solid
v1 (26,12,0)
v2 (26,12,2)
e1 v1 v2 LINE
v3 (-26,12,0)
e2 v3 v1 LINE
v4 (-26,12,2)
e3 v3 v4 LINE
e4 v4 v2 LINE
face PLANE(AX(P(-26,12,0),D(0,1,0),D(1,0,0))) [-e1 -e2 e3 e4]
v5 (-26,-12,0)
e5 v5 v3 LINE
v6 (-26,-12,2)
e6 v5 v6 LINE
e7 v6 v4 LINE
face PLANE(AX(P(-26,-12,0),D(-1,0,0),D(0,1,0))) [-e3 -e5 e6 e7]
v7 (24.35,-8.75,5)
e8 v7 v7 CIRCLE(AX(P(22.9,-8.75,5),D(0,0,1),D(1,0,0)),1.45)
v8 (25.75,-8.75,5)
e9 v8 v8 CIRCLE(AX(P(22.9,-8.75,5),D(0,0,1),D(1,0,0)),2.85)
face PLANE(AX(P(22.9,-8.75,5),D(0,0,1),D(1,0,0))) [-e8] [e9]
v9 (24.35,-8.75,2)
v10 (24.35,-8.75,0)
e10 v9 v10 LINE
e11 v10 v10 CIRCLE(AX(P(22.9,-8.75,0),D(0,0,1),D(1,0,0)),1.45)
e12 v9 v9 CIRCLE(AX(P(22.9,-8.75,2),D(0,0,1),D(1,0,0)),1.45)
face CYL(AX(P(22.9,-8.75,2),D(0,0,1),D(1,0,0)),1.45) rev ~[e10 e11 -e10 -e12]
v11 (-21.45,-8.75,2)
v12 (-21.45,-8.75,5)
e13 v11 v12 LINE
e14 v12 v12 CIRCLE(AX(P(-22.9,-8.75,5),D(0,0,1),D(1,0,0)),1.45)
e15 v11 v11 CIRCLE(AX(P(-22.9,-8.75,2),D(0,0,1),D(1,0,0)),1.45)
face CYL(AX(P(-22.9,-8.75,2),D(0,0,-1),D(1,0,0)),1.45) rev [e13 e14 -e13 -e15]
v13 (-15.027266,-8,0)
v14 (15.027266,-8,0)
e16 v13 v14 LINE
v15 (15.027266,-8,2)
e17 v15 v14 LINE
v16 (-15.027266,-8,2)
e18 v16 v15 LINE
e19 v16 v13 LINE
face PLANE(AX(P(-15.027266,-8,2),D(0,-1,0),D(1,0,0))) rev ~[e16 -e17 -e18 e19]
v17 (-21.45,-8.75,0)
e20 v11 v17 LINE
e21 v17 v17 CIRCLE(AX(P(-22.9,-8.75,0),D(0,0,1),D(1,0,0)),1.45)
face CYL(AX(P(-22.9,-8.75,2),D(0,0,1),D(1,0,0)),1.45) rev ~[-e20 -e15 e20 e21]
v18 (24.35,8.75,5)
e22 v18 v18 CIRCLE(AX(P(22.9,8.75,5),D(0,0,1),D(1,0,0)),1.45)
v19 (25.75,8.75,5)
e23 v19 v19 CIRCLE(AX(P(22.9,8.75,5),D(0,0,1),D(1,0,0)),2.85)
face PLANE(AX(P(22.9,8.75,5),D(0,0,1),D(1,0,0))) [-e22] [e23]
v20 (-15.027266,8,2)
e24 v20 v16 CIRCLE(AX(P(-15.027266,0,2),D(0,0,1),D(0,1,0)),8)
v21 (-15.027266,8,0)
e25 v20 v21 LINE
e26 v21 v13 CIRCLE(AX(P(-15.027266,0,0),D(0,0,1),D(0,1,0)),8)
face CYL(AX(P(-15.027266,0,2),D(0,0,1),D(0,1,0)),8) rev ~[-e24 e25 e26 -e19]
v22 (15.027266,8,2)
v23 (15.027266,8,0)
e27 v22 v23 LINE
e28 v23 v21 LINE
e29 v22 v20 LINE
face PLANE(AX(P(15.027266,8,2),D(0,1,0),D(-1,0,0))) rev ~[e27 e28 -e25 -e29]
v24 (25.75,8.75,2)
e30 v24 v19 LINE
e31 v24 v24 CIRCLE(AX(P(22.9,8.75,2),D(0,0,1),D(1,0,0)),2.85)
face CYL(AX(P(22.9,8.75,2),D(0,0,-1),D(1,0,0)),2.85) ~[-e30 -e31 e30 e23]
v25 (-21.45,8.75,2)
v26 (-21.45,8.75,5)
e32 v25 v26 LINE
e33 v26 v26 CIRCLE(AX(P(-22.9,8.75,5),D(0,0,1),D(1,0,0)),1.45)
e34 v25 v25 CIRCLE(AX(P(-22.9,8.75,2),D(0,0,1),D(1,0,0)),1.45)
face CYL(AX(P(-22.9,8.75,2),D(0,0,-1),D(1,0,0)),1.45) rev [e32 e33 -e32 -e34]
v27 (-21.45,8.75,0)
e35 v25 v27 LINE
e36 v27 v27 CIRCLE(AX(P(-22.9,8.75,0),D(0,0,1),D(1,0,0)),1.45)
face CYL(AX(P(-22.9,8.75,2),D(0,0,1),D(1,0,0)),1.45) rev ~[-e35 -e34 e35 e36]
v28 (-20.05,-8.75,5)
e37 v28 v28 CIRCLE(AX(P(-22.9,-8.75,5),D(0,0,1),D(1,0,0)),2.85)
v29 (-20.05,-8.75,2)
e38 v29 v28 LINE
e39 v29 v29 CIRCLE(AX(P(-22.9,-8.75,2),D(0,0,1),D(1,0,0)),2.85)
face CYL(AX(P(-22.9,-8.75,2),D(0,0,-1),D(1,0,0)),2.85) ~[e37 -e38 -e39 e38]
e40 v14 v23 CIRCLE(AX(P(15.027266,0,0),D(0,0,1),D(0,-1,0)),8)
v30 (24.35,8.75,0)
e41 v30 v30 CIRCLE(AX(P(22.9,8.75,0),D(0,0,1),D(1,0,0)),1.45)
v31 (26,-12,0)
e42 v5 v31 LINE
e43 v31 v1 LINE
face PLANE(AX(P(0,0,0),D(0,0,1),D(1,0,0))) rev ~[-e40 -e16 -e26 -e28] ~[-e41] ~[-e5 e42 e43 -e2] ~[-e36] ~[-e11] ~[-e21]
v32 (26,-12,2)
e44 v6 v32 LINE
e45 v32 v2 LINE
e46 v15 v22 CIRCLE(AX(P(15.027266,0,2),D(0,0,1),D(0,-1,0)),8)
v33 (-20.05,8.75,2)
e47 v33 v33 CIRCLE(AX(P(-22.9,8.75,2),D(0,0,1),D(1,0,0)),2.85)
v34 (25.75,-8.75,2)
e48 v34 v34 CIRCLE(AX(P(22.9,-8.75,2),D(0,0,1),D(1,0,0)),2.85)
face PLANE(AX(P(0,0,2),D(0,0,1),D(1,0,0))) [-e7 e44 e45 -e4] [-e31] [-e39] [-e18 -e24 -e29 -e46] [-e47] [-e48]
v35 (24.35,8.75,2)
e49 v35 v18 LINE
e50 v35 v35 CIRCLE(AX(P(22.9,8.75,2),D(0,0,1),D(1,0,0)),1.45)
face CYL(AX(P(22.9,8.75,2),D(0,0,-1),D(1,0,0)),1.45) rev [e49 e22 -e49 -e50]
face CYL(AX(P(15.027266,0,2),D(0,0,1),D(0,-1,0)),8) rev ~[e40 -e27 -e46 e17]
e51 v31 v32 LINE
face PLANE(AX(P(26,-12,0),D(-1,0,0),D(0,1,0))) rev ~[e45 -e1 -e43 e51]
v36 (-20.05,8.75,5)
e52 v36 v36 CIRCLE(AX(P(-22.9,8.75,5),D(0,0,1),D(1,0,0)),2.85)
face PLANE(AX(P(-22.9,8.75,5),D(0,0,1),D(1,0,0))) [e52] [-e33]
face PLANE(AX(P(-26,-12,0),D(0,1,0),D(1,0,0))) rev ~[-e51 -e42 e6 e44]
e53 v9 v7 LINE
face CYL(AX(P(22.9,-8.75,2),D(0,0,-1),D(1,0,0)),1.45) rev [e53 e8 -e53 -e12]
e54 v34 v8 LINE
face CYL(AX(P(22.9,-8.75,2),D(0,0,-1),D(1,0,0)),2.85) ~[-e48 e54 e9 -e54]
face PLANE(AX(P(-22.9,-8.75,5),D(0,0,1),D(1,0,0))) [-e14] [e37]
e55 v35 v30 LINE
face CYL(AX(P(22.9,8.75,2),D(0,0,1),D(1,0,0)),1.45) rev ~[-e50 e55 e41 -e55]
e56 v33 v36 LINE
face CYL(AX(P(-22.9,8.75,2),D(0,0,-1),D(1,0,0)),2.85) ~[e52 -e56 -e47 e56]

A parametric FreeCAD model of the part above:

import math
import FreeCAD as App
import Part
import Sketcher
from FreeCAD import Vector

doc = App.newDocument("Part")
body = doc.addObject("PartDesign::Body", "Body")

sketch1 = body.newObject("Sketcher::SketchObject", "Sketch")
sketch1.AttachmentSupport = (doc.getObject("XY_Plane"), [""])
sketch1.MapMode = "FlatFace"
sketch1.addGeometry([
    Part.LineSegment(Vector(-26, 12, 0), Vector(-26, -12, 0)),
    Part.LineSegment(Vector(-26, -12, 0), Vector(26, -12, 0)),
    Part.LineSegment(Vector(26, -12, 0), Vector(26, 12, 0)),
    Part.LineSegment(Vector(26, 12, 0), Vector(-26, 12, 0)),
], False)
sketch1.addConstraint([
    Sketcher.Constraint("Coincident", 0, 2, 1, 1),
    Sketcher.Constraint("Coincident", 1, 2, 2, 1),
    Sketcher.Constraint("Coincident", 2, 2, 3, 1),
    Sketcher.Constraint("Coincident", 3, 2, 0, 1),
    Sketcher.Constraint("Vertical", 0),
    Sketcher.Constraint("Horizontal", 1),
    Sketcher.Constraint("Vertical", 2),
    Sketcher.Constraint("Horizontal", 3),
    Sketcher.Constraint("Symmetric", 0, 2, 2, 2, -1, 1),
    Sketcher.Constraint("DistanceX", 1, 1, 1, 2, 52.0),
    Sketcher.Constraint("DistanceY", 0, 2, 0, 1, 24.0),
])
pad1 = body.newObject("PartDesign::Pad", "Pad")
pad1.Profile = sketch1
pad1.Length = 2

sketch2 = body.newObject("Sketcher::SketchObject", "Sketch001")
sketch2.AttachmentSupport = (doc.getObject("XY_Plane"), [""])
sketch2.MapMode = "FlatFace"
sketch2.AttachmentOffset = App.Placement(Vector(0, 0, 2), App.Rotation())
sketch2.addGeometry([
    Part.Circle(Vector(-22.9, 8.8, 0), Vector(0, 0, 1), 1.4),
    Part.Circle(Vector(22.9, 8.8, 0), Vector(0, 0, 1), 1.4),
    Part.Circle(Vector(22.9, -8.8, 0), Vector(0, 0, 1), 1.4),
    Part.Circle(Vector(-22.9, -8.8, 0), Vector(0, 0, 1), 1.4),
], False)
sketch2.addConstraint([
    Sketcher.Constraint("Equal", 0, 1),
    Sketcher.Constraint("Equal", 1, 2),
    Sketcher.Constraint("Equal", 2, 3),
    Sketcher.Constraint("Symmetric", 0, 3, 2, 3, -1, 1),
    Sketcher.Constraint("Symmetric", 1, 3, 3, 3, -1, 1),
    Sketcher.Constraint("Symmetric", 0, 3, 1, 3, -2),
    Sketcher.Constraint("Diameter", 0, 2.9),
    Sketcher.Constraint("DistanceX", 0, 3, -1, 1, 22.9),
    Sketcher.Constraint("DistanceY", 2, 3, 1, 3, 17.5),
])
pocket1 = body.newObject("PartDesign::Pocket", "Pocket")
pocket1.Profile = sketch2
pocket1.Type = "ThroughAll"

sketch3 = body.newObject("Sketcher::SketchObject", "Sketch002")
sketch3.AttachmentSupport = (doc.getObject("XY_Plane"), [""])
sketch3.MapMode = "FlatFace"
sketch3.AttachmentOffset = App.Placement(Vector(0, 0, 2), App.Rotation())
sketch3.addGeometry([
    Part.Circle(Vector(-22.9, 8.8, 0), Vector(0, 0, 1), 2.9),
    Part.Circle(Vector(-22.9, 8.8, 0), Vector(0, 0, 1), 1.4),
    Part.Circle(Vector(22.9, 8.8, 0), Vector(0, 0, 1), 2.9),
    Part.Circle(Vector(22.9, 8.8, 0), Vector(0, 0, 1), 1.4),
    Part.Circle(Vector(22.9, -8.8, 0), Vector(0, 0, 1), 2.9),
    Part.Circle(Vector(22.9, -8.8, 0), Vector(0, 0, 1), 1.4),
    Part.Circle(Vector(-22.9, -8.8, 0), Vector(0, 0, 1), 2.9),
    Part.Circle(Vector(-22.9, -8.8, 0), Vector(0, 0, 1), 1.4),
], False)
sketch3.addConstraint([
    Sketcher.Constraint("Coincident", 1, 3, 0, 3),
    Sketcher.Constraint("Coincident", 3, 3, 2, 3),
    Sketcher.Constraint("Coincident", 5, 3, 4, 3),
    Sketcher.Constraint("Coincident", 7, 3, 6, 3),
    Sketcher.Constraint("Equal", 0, 2),
    Sketcher.Constraint("Equal", 1, 3),
    Sketcher.Constraint("Equal", 2, 4),
    Sketcher.Constraint("Equal", 3, 5),
    Sketcher.Constraint("Equal", 4, 6),
    Sketcher.Constraint("Equal", 5, 7),
    Sketcher.Constraint("Symmetric", 0, 3, 4, 3, -1, 1),
    Sketcher.Constraint("Symmetric", 2, 3, 6, 3, -1, 1),
    Sketcher.Constraint("Symmetric", 0, 3, 2, 3, -2),
    Sketcher.Constraint("Diameter", 0, 5.7),
    Sketcher.Constraint("Diameter", 1, 2.9),
    Sketcher.Constraint("DistanceX", 0, 3, -1, 1, 22.9),
    Sketcher.Constraint("DistanceY", 4, 3, 2, 3, 17.5),
])
pad2 = body.newObject("PartDesign::Pad", "Pad001")
pad2.Profile = sketch3
pad2.Length = 3

sketch4 = body.newObject("Sketcher::SketchObject", "Sketch003")
sketch4.AttachmentSupport = (doc.getObject("XY_Plane"), [""])
sketch4.MapMode = "FlatFace"
sketch4.AttachmentOffset = App.Placement(Vector(0, 0, 2), App.Rotation())
sketch4.addGeometry([
    Part.ArcOfCircle(Part.Circle(Vector(-15, 0, 0), Vector(0, 0, 1), 8), math.radians(90), math.radians(270)),
    Part.LineSegment(Vector(-15, -8, 0), Vector(15, -8, 0)),
    Part.ArcOfCircle(Part.Circle(Vector(15, 0, 0), Vector(0, 0, 1), 8), math.radians(-90), math.radians(90)),
    Part.LineSegment(Vector(15, 8, 0), Vector(-15, 8, 0)),
], False)
sketch4.addConstraint([
    Sketcher.Constraint("Tangent", 0, 2, 1, 1),
    Sketcher.Constraint("Tangent", 1, 2, 2, 1),
    Sketcher.Constraint("Tangent", 2, 2, 3, 1),
    Sketcher.Constraint("Tangent", 3, 2, 0, 1),
    Sketcher.Constraint("Horizontal", 1),
    Sketcher.Constraint("Horizontal", 3),
    Sketcher.Constraint("Symmetric", 0, 3, 2, 3, -1, 1),
    Sketcher.Constraint("Radius", 0, 8.0),
    Sketcher.Constraint("DistanceX", 1, 1, 1, 2, 30.054532),
])
pocket2 = body.newObject("PartDesign::Pocket", "Pocket001")
pocket2.Profile = sketch4
pocket2.Type = "ThroughAll"

doc.recompute()
